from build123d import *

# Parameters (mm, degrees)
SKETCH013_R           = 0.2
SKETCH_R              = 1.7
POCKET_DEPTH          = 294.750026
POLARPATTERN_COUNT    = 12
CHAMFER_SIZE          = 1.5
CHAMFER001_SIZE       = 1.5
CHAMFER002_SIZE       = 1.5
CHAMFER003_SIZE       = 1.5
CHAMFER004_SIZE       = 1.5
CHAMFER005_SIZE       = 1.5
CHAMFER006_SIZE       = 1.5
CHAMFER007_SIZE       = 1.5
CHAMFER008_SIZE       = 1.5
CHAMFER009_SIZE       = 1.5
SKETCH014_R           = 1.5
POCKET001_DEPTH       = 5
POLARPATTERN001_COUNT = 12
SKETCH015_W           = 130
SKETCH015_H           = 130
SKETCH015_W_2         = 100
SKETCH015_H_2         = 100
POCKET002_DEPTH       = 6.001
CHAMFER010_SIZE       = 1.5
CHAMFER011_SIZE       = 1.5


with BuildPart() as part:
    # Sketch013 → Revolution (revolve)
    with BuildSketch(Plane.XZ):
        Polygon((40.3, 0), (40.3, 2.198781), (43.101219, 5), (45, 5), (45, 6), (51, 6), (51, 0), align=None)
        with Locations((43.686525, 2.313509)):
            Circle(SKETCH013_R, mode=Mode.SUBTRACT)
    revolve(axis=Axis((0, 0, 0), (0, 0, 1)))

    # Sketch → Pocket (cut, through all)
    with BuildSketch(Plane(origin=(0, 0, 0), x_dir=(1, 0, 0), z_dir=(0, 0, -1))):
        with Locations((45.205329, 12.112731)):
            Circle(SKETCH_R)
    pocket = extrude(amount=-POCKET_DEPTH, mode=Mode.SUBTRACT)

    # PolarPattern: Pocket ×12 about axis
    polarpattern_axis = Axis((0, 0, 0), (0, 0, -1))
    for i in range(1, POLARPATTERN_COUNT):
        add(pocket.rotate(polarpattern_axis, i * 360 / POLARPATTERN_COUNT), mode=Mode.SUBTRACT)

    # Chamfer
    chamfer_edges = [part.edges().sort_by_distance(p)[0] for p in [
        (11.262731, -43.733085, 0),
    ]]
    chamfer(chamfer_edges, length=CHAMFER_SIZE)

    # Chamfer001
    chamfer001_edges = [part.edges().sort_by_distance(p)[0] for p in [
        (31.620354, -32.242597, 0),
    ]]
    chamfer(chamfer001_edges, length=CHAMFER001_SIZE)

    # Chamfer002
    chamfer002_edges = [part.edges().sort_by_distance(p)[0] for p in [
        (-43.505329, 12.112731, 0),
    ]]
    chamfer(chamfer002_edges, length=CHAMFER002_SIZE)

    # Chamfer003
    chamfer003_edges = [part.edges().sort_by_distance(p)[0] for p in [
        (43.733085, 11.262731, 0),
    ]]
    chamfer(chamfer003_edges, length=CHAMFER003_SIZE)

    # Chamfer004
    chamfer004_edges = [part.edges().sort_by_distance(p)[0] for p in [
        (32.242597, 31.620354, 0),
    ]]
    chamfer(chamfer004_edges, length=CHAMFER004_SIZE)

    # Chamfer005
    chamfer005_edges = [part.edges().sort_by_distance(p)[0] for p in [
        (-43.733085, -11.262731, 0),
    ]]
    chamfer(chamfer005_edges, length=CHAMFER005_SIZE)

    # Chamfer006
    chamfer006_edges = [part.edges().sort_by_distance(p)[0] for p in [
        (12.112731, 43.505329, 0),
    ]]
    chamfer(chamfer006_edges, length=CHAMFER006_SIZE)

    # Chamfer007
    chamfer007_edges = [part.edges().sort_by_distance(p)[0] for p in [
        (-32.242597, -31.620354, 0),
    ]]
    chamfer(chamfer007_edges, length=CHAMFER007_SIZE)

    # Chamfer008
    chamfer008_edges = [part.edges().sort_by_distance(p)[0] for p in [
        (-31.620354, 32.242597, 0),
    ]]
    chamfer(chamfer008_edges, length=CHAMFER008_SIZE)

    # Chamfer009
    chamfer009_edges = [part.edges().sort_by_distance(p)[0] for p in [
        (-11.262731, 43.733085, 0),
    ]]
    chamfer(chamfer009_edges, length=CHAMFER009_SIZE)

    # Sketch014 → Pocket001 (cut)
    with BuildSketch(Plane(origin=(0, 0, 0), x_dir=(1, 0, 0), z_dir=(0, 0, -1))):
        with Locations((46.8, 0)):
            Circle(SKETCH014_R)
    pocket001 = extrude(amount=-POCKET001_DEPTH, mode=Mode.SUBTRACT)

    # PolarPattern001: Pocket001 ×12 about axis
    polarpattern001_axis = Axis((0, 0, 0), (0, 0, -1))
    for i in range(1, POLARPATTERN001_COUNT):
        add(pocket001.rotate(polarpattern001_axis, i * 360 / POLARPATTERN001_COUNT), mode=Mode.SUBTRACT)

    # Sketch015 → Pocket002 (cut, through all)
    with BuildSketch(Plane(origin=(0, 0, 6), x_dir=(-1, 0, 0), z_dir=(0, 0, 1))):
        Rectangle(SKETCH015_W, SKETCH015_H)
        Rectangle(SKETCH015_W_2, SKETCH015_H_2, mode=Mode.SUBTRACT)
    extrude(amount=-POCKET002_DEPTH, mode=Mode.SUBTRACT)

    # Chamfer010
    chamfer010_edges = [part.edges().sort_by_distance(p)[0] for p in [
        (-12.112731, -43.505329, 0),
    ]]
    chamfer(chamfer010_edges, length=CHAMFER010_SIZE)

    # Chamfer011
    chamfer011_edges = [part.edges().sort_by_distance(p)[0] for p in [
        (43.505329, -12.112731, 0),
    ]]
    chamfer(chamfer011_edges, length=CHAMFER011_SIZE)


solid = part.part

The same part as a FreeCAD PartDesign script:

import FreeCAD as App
import Part
import Sketcher
Q = App.Units.Quantity


def edges_at(feature, points):
    """Names of the edges that pass closest to the given points."""
    edges = feature.Shape.Edges
    near = lambda p: min(range(len(edges)), key=lambda i: edges[i].distToShape(Part.Vertex(*p))[0])
    return sorted({f"Edge{near(p) + 1}" for p in points})

doc = App.newDocument("Part")
body = doc.addObject("PartDesign::Body", "Body")

sketch1 = doc.addObject("Sketcher::SketchObject", "Sketch")
body.addObject(sketch1)
sketch1.AttachmentSupport = (doc.XZ_Plane, [""])
sketch1.MapMode = "FlatFace"
sketch1.addGeometry(Part.LineSegment(App.Vector(40.3, 2.2, 0), App.Vector(40.3, 0, 0)), False)
sketch1.addGeometry(Part.LineSegment(App.Vector(40.3, 0, 0), App.Vector(51, 0, 0)), False)
sketch1.addGeometry(Part.LineSegment(App.Vector(51, 0, 0), App.Vector(51, 6, 0)), False)
sketch1.addGeometry(Part.LineSegment(App.Vector(51, 6, 0), App.Vector(45, 6, 0)), False)
sketch1.addGeometry(Part.LineSegment(App.Vector(45, 6, 0), App.Vector(45, 5, 0)), False)
sketch1.addGeometry(Part.LineSegment(App.Vector(45, 5, 0), App.Vector(43.1, 5, 0)), False)
sketch1.addGeometry(Part.LineSegment(App.Vector(43.1, 5, 0), App.Vector(40.3, 2.2, 0)), False)
sketch1.addGeometry(Part.Circle(App.Vector(43.69, 2.31, 0), App.Vector(0, 0, 1), 0.2), False)
sketch1.addConstraint(Sketcher.Constraint("Coincident", 0, 2, 1, 1))
sketch1.addConstraint(Sketcher.Constraint("Coincident", 1, 2, 2, 1))
sketch1.addConstraint(Sketcher.Constraint("Coincident", 2, 2, 3, 1))
sketch1.addConstraint(Sketcher.Constraint("Coincident", 3, 2, 4, 1))
sketch1.addConstraint(Sketcher.Constraint("Coincident", 4, 2, 5, 1))
sketch1.addConstraint(Sketcher.Constraint("Coincident", 5, 2, 6, 1))
sketch1.addConstraint(Sketcher.Constraint("Coincident", 6, 2, 0, 1))
sketch1.addConstraint(Sketcher.Constraint("Vertical", 0))
sketch1.addConstraint(Sketcher.Constraint("Horizontal", 1))
sketch1.addConstraint(Sketcher.Constraint("Vertical", 2))
sketch1.addConstraint(Sketcher.Constraint("Horizontal", 3))
sketch1.addConstraint(Sketcher.Constraint("Vertical", 4))
sketch1.addConstraint(Sketcher.Constraint("Horizontal", 5))
sketch1.addConstraint(Sketcher.Constraint("PointOnObject", 0, 2, -1))
sketch1.addConstraint(Sketcher.Constraint("Equal", 3, 2))
sketch1.addConstraint(Sketcher.Constraint("Diameter", 7, 0.4))
sketch1.addConstraint(Sketcher.Constraint("DistanceX", 3, 2, 3, 1, 6.0))
sketch1.addConstraint(Sketcher.Constraint("DistanceY", 4, 2, 4, 1, 1.0))
sketch1.addConstraint(Sketcher.Constraint("Angle", 6, Q("-135 deg")))
sketch1.addConstraint(Sketcher.Constraint("DistanceX", 1, 1, 1, 2, 10.7))
sketch1.addConstraint(Sketcher.Constraint("DistanceX", -1, 1, 1, 2, 51.0))
sketch1.addConstraint(Sketcher.Constraint("DistanceX", 5, 2, 5, 1, 1.898781))
sketch1.addConstraint(Sketcher.Constraint("DistanceY", -1, 1, 7, 3, 2.313509))
sketch1.addConstraint(Sketcher.Constraint("DistanceX", -1, 1, 7, 3, 43.686525))
revolution = doc.addObject("PartDesign::Revolution", "Revolution")
body.addObject(revolution)
revolution.Profile = sketch1
revolution.ReferenceAxis = (sketch1, ["V_Axis"])
revolution.Angle = 360

sketch2 = doc.addObject("Sketcher::SketchObject", "Sketch001")
body.addObject(sketch2)
sketch2.AttachmentSupport = (doc.XY_Plane, [""])
sketch2.MapMode = "FlatFace"
sketch2.addGeometry(Part.Circle(App.Vector(45.2, -12.1, 0), App.Vector(0, 0, 1), 1.7), False)
sketch2.addConstraint(Sketcher.Constraint("Diameter", 0, 3.4))
sketch2.addConstraint(Sketcher.Constraint("DistanceX", -1, 1, 0, 3, 45.205329))
sketch2.addConstraint(Sketcher.Constraint("DistanceY", 0, 3, -1, 1, 12.112731))
pocket1 = doc.addObject("PartDesign::Pocket", "Pocket")
body.addObject(pocket1)
pocket1.Profile = sketch2
pocket1.Type = "ThroughAll"
pocket1.Reversed = True
doc.recompute()

polarpattern = doc.addObject("PartDesign::PolarPattern", "PolarPattern")
body.addObject(polarpattern)
polarpattern.Originals = [pocket1]
polarpattern.Axis = (doc.Z_Axis, [""])
polarpattern.Angle = 360
polarpattern.Occurrences = 12
body.Tip = polarpattern
doc.recompute()

chamfer = doc.addObject("PartDesign::Chamfer", "Chamfer")
body.addObject(chamfer)
chamfer.Base = (polarpattern, edges_at(polarpattern, [(11.263, -43.733, 0)]))
chamfer.Size = 1.5
doc.recompute()

chamfer2 = doc.addObject("PartDesign::Chamfer", "Chamfer001")
body.addObject(chamfer2)
chamfer2.Base = (chamfer, edges_at(chamfer, [(31.62, -32.243, 0)]))
chamfer2.Size = 1.5
doc.recompute()

chamfer3 = doc.addObject("PartDesign::Chamfer", "Chamfer002")
body.addObject(chamfer3)
chamfer3.Base = (chamfer2, edges_at(chamfer2, [(-43.505, 12.113, 0)]))
chamfer3.Size = 1.5
doc.recompute()

chamfer4 = doc.addObject("PartDesign::Chamfer", "Chamfer003")
body.addObject(chamfer4)
chamfer4.Base = (chamfer3, edges_at(chamfer3, [(43.733, 11.263, 0)]))
chamfer4.Size = 1.5
doc.recompute()

chamfer5 = doc.addObject("PartDesign::Chamfer", "Chamfer004")
body.addObject(chamfer5)
chamfer5.Base = (chamfer4, edges_at(chamfer4, [(32.243, 31.62, 0)]))
chamfer5.Size = 1.5
doc.recompute()

chamfer6 = doc.addObject("PartDesign::Chamfer", "Chamfer005")
body.addObject(chamfer6)
chamfer6.Base = (chamfer5, edges_at(chamfer5, [(-43.733, -11.263, 0)]))
chamfer6.Size = 1.5
doc.recompute()

chamfer7 = doc.addObject("PartDesign::Chamfer", "Chamfer006")
body.addObject(chamfer7)
chamfer7.Base = (chamfer6, edges_at(chamfer6, [(12.113, 43.505, 0)]))
chamfer7.Size = 1.5
doc.recompute()

chamfer8 = doc.addObject("PartDesign::Chamfer", "Chamfer007")
body.addObject(chamfer8)
chamfer8.Base = (chamfer7, edges_at(chamfer7, [(-32.243, -31.62, 0)]))
chamfer8.Size = 1.5
doc.recompute()

chamfer9 = doc.addObject("PartDesign::Chamfer", "Chamfer008")
body.addObject(chamfer9)
chamfer9.Base = (chamfer8, edges_at(chamfer8, [(-31.62, 32.243, 0)]))
chamfer9.Size = 1.5
doc.recompute()

chamfer10 = doc.addObject("PartDesign::Chamfer", "Chamfer009")
body.addObject(chamfer10)
chamfer10.Base = (chamfer9, edges_at(chamfer9, [(-11.263, 43.733, 0)]))
chamfer10.Size = 1.5

sketch3 = doc.addObject("Sketcher::SketchObject", "Sketch002")
body.addObject(sketch3)
sketch3.AttachmentSupport = (doc.XY_Plane, [""])
sketch3.MapMode = "FlatFace"
sketch3.addGeometry(Part.Circle(App.Vector(46.8, 0, 0), App.Vector(0, 0, 1), 1.5), False)
sketch3.addConstraint(Sketcher.Constraint("PointOnObject", 0, 3, -1))
sketch3.addConstraint(Sketcher.Constraint("Diameter", 0, 3.0))
sketch3.addConstraint(Sketcher.Constraint("DistanceX", -1, 1, 0, 3, 46.8))
pocket2 = doc.addObject("PartDesign::Pocket", "Pocket001")
body.addObject(pocket2)
pocket2.Profile = sketch3
pocket2.Length = 5
pocket2.Reversed = True
doc.recompute()

polarpattern2 = doc.addObject("PartDesign::PolarPattern", "PolarPattern001")
body.addObject(polarpattern2)
polarpattern2.Originals = [pocket2]
polarpattern2.Axis = (doc.Z_Axis, [""])
polarpattern2.Angle = 360
polarpattern2.Occurrences = 12
body.Tip = polarpattern2

sketch4 = doc.addObject("Sketcher::SketchObject", "Sketch003")
body.addObject(sketch4)
sketch4.AttachmentSupport = (doc.XY_Plane, [""])
sketch4.MapMode = "FlatFace"
sketch4.AttachmentOffset = App.Placement(App.Vector(0, 0, 6), App.Rotation())
sketch4.addGeometry(Part.LineSegment(App.Vector(65, -65, 0), App.Vector(65, 65, 0)), False)
sketch4.addGeometry(Part.LineSegment(App.Vector(65, 65, 0), App.Vector(-65, 65, 0)), False)
sketch4.addGeometry(Part.LineSegment(App.Vector(-65, 65, 0), App.Vector(-65, -65, 0)), False)
sketch4.addGeometry(Part.LineSegment(App.Vector(-65, -65, 0), App.Vector(65, -65, 0)), False)
sketch4.addGeometry(Part.LineSegment(App.Vector(-50, 50, 0), App.Vector(50, 50, 0)), False)
sketch4.addGeometry(Part.LineSegment(App.Vector(50, 50, 0), App.Vector(50, -50, 0)), False)
sketch4.addGeometry(Part.LineSegment(App.Vector(50, -50, 0), App.Vector(-50, -50, 0)), False)
sketch4.addGeometry(Part.LineSegment(App.Vector(-50, -50, 0), App.Vector(-50, 50, 0)), False)
sketch4.addConstraint(Sketcher.Constraint("Coincident", 0, 2, 1, 1))
sketch4.addConstraint(Sketcher.Constraint("Coincident", 1, 2, 2, 1))
sketch4.addConstraint(Sketcher.Constraint("Coincident", 2, 2, 3, 1))
sketch4.addConstraint(Sketcher.Constraint("Coincident", 3, 2, 0, 1))
sketch4.addConstraint(Sketcher.Constraint("Coincident", 4, 2, 5, 1))
sketch4.addConstraint(Sketcher.Constraint("Coincident", 5, 2, 6, 1))
sketch4.addConstraint(Sketcher.Constraint("Coincident", 6, 2, 7, 1))
sketch4.addConstraint(Sketcher.Constraint("Coincident", 7, 2, 4, 1))
sketch4.addConstraint(Sketcher.Constraint("Vertical", 0))
sketch4.addConstraint(Sketcher.Constraint("Horizontal", 1))
sketch4.addConstraint(Sketcher.Constraint("Vertical", 2))
sketch4.addConstraint(Sketcher.Constraint("Horizontal", 3))
sketch4.addConstraint(Sketcher.Constraint("Horizontal", 4))
sketch4.addConstraint(Sketcher.Constraint("Vertical", 5))
sketch4.addConstraint(Sketcher.Constraint("Horizontal", 6))
sketch4.addConstraint(Sketcher.Constraint("Vertical", 7))
sketch4.addConstraint(Sketcher.Constraint("Symmetric", 0, 2, 2, 2, -1, 1))
sketch4.addConstraint(Sketcher.Constraint("Symmetric", 4, 2, 6, 2, -1, 1))
sketch4.addConstraint(Sketcher.Constraint("Equal", 3, 0))
sketch4.addConstraint(Sketcher.Constraint("Equal", 6, 5))
sketch4.addConstraint(Sketcher.Constraint("DistanceX", 1, 2, 1, 1, 130.0))
sketch4.addConstraint(Sketcher.Constraint("DistanceX", 4, 1, 4, 2, 100.0))
pocket3 = doc.addObject("PartDesign::Pocket", "Pocket002")
body.addObject(pocket3)
pocket3.Profile = sketch4
pocket3.Type = "ThroughAll"
doc.recompute()

chamfer11 = doc.addObject("PartDesign::Chamfer", "Chamfer010")
body.addObject(chamfer11)
chamfer11.Base = (pocket3, edges_at(pocket3, [(-12.113, -43.505, 0)]))
chamfer11.Size = 1.5
doc.recompute()

chamfer12 = doc.addObject("PartDesign::Chamfer", "Chamfer011")
body.addObject(chamfer12)
chamfer12.Base = (chamfer11, edges_at(chamfer11, [(43.505, -12.113, 0)]))
chamfer12.Size = 1.5

doc.recompute()
